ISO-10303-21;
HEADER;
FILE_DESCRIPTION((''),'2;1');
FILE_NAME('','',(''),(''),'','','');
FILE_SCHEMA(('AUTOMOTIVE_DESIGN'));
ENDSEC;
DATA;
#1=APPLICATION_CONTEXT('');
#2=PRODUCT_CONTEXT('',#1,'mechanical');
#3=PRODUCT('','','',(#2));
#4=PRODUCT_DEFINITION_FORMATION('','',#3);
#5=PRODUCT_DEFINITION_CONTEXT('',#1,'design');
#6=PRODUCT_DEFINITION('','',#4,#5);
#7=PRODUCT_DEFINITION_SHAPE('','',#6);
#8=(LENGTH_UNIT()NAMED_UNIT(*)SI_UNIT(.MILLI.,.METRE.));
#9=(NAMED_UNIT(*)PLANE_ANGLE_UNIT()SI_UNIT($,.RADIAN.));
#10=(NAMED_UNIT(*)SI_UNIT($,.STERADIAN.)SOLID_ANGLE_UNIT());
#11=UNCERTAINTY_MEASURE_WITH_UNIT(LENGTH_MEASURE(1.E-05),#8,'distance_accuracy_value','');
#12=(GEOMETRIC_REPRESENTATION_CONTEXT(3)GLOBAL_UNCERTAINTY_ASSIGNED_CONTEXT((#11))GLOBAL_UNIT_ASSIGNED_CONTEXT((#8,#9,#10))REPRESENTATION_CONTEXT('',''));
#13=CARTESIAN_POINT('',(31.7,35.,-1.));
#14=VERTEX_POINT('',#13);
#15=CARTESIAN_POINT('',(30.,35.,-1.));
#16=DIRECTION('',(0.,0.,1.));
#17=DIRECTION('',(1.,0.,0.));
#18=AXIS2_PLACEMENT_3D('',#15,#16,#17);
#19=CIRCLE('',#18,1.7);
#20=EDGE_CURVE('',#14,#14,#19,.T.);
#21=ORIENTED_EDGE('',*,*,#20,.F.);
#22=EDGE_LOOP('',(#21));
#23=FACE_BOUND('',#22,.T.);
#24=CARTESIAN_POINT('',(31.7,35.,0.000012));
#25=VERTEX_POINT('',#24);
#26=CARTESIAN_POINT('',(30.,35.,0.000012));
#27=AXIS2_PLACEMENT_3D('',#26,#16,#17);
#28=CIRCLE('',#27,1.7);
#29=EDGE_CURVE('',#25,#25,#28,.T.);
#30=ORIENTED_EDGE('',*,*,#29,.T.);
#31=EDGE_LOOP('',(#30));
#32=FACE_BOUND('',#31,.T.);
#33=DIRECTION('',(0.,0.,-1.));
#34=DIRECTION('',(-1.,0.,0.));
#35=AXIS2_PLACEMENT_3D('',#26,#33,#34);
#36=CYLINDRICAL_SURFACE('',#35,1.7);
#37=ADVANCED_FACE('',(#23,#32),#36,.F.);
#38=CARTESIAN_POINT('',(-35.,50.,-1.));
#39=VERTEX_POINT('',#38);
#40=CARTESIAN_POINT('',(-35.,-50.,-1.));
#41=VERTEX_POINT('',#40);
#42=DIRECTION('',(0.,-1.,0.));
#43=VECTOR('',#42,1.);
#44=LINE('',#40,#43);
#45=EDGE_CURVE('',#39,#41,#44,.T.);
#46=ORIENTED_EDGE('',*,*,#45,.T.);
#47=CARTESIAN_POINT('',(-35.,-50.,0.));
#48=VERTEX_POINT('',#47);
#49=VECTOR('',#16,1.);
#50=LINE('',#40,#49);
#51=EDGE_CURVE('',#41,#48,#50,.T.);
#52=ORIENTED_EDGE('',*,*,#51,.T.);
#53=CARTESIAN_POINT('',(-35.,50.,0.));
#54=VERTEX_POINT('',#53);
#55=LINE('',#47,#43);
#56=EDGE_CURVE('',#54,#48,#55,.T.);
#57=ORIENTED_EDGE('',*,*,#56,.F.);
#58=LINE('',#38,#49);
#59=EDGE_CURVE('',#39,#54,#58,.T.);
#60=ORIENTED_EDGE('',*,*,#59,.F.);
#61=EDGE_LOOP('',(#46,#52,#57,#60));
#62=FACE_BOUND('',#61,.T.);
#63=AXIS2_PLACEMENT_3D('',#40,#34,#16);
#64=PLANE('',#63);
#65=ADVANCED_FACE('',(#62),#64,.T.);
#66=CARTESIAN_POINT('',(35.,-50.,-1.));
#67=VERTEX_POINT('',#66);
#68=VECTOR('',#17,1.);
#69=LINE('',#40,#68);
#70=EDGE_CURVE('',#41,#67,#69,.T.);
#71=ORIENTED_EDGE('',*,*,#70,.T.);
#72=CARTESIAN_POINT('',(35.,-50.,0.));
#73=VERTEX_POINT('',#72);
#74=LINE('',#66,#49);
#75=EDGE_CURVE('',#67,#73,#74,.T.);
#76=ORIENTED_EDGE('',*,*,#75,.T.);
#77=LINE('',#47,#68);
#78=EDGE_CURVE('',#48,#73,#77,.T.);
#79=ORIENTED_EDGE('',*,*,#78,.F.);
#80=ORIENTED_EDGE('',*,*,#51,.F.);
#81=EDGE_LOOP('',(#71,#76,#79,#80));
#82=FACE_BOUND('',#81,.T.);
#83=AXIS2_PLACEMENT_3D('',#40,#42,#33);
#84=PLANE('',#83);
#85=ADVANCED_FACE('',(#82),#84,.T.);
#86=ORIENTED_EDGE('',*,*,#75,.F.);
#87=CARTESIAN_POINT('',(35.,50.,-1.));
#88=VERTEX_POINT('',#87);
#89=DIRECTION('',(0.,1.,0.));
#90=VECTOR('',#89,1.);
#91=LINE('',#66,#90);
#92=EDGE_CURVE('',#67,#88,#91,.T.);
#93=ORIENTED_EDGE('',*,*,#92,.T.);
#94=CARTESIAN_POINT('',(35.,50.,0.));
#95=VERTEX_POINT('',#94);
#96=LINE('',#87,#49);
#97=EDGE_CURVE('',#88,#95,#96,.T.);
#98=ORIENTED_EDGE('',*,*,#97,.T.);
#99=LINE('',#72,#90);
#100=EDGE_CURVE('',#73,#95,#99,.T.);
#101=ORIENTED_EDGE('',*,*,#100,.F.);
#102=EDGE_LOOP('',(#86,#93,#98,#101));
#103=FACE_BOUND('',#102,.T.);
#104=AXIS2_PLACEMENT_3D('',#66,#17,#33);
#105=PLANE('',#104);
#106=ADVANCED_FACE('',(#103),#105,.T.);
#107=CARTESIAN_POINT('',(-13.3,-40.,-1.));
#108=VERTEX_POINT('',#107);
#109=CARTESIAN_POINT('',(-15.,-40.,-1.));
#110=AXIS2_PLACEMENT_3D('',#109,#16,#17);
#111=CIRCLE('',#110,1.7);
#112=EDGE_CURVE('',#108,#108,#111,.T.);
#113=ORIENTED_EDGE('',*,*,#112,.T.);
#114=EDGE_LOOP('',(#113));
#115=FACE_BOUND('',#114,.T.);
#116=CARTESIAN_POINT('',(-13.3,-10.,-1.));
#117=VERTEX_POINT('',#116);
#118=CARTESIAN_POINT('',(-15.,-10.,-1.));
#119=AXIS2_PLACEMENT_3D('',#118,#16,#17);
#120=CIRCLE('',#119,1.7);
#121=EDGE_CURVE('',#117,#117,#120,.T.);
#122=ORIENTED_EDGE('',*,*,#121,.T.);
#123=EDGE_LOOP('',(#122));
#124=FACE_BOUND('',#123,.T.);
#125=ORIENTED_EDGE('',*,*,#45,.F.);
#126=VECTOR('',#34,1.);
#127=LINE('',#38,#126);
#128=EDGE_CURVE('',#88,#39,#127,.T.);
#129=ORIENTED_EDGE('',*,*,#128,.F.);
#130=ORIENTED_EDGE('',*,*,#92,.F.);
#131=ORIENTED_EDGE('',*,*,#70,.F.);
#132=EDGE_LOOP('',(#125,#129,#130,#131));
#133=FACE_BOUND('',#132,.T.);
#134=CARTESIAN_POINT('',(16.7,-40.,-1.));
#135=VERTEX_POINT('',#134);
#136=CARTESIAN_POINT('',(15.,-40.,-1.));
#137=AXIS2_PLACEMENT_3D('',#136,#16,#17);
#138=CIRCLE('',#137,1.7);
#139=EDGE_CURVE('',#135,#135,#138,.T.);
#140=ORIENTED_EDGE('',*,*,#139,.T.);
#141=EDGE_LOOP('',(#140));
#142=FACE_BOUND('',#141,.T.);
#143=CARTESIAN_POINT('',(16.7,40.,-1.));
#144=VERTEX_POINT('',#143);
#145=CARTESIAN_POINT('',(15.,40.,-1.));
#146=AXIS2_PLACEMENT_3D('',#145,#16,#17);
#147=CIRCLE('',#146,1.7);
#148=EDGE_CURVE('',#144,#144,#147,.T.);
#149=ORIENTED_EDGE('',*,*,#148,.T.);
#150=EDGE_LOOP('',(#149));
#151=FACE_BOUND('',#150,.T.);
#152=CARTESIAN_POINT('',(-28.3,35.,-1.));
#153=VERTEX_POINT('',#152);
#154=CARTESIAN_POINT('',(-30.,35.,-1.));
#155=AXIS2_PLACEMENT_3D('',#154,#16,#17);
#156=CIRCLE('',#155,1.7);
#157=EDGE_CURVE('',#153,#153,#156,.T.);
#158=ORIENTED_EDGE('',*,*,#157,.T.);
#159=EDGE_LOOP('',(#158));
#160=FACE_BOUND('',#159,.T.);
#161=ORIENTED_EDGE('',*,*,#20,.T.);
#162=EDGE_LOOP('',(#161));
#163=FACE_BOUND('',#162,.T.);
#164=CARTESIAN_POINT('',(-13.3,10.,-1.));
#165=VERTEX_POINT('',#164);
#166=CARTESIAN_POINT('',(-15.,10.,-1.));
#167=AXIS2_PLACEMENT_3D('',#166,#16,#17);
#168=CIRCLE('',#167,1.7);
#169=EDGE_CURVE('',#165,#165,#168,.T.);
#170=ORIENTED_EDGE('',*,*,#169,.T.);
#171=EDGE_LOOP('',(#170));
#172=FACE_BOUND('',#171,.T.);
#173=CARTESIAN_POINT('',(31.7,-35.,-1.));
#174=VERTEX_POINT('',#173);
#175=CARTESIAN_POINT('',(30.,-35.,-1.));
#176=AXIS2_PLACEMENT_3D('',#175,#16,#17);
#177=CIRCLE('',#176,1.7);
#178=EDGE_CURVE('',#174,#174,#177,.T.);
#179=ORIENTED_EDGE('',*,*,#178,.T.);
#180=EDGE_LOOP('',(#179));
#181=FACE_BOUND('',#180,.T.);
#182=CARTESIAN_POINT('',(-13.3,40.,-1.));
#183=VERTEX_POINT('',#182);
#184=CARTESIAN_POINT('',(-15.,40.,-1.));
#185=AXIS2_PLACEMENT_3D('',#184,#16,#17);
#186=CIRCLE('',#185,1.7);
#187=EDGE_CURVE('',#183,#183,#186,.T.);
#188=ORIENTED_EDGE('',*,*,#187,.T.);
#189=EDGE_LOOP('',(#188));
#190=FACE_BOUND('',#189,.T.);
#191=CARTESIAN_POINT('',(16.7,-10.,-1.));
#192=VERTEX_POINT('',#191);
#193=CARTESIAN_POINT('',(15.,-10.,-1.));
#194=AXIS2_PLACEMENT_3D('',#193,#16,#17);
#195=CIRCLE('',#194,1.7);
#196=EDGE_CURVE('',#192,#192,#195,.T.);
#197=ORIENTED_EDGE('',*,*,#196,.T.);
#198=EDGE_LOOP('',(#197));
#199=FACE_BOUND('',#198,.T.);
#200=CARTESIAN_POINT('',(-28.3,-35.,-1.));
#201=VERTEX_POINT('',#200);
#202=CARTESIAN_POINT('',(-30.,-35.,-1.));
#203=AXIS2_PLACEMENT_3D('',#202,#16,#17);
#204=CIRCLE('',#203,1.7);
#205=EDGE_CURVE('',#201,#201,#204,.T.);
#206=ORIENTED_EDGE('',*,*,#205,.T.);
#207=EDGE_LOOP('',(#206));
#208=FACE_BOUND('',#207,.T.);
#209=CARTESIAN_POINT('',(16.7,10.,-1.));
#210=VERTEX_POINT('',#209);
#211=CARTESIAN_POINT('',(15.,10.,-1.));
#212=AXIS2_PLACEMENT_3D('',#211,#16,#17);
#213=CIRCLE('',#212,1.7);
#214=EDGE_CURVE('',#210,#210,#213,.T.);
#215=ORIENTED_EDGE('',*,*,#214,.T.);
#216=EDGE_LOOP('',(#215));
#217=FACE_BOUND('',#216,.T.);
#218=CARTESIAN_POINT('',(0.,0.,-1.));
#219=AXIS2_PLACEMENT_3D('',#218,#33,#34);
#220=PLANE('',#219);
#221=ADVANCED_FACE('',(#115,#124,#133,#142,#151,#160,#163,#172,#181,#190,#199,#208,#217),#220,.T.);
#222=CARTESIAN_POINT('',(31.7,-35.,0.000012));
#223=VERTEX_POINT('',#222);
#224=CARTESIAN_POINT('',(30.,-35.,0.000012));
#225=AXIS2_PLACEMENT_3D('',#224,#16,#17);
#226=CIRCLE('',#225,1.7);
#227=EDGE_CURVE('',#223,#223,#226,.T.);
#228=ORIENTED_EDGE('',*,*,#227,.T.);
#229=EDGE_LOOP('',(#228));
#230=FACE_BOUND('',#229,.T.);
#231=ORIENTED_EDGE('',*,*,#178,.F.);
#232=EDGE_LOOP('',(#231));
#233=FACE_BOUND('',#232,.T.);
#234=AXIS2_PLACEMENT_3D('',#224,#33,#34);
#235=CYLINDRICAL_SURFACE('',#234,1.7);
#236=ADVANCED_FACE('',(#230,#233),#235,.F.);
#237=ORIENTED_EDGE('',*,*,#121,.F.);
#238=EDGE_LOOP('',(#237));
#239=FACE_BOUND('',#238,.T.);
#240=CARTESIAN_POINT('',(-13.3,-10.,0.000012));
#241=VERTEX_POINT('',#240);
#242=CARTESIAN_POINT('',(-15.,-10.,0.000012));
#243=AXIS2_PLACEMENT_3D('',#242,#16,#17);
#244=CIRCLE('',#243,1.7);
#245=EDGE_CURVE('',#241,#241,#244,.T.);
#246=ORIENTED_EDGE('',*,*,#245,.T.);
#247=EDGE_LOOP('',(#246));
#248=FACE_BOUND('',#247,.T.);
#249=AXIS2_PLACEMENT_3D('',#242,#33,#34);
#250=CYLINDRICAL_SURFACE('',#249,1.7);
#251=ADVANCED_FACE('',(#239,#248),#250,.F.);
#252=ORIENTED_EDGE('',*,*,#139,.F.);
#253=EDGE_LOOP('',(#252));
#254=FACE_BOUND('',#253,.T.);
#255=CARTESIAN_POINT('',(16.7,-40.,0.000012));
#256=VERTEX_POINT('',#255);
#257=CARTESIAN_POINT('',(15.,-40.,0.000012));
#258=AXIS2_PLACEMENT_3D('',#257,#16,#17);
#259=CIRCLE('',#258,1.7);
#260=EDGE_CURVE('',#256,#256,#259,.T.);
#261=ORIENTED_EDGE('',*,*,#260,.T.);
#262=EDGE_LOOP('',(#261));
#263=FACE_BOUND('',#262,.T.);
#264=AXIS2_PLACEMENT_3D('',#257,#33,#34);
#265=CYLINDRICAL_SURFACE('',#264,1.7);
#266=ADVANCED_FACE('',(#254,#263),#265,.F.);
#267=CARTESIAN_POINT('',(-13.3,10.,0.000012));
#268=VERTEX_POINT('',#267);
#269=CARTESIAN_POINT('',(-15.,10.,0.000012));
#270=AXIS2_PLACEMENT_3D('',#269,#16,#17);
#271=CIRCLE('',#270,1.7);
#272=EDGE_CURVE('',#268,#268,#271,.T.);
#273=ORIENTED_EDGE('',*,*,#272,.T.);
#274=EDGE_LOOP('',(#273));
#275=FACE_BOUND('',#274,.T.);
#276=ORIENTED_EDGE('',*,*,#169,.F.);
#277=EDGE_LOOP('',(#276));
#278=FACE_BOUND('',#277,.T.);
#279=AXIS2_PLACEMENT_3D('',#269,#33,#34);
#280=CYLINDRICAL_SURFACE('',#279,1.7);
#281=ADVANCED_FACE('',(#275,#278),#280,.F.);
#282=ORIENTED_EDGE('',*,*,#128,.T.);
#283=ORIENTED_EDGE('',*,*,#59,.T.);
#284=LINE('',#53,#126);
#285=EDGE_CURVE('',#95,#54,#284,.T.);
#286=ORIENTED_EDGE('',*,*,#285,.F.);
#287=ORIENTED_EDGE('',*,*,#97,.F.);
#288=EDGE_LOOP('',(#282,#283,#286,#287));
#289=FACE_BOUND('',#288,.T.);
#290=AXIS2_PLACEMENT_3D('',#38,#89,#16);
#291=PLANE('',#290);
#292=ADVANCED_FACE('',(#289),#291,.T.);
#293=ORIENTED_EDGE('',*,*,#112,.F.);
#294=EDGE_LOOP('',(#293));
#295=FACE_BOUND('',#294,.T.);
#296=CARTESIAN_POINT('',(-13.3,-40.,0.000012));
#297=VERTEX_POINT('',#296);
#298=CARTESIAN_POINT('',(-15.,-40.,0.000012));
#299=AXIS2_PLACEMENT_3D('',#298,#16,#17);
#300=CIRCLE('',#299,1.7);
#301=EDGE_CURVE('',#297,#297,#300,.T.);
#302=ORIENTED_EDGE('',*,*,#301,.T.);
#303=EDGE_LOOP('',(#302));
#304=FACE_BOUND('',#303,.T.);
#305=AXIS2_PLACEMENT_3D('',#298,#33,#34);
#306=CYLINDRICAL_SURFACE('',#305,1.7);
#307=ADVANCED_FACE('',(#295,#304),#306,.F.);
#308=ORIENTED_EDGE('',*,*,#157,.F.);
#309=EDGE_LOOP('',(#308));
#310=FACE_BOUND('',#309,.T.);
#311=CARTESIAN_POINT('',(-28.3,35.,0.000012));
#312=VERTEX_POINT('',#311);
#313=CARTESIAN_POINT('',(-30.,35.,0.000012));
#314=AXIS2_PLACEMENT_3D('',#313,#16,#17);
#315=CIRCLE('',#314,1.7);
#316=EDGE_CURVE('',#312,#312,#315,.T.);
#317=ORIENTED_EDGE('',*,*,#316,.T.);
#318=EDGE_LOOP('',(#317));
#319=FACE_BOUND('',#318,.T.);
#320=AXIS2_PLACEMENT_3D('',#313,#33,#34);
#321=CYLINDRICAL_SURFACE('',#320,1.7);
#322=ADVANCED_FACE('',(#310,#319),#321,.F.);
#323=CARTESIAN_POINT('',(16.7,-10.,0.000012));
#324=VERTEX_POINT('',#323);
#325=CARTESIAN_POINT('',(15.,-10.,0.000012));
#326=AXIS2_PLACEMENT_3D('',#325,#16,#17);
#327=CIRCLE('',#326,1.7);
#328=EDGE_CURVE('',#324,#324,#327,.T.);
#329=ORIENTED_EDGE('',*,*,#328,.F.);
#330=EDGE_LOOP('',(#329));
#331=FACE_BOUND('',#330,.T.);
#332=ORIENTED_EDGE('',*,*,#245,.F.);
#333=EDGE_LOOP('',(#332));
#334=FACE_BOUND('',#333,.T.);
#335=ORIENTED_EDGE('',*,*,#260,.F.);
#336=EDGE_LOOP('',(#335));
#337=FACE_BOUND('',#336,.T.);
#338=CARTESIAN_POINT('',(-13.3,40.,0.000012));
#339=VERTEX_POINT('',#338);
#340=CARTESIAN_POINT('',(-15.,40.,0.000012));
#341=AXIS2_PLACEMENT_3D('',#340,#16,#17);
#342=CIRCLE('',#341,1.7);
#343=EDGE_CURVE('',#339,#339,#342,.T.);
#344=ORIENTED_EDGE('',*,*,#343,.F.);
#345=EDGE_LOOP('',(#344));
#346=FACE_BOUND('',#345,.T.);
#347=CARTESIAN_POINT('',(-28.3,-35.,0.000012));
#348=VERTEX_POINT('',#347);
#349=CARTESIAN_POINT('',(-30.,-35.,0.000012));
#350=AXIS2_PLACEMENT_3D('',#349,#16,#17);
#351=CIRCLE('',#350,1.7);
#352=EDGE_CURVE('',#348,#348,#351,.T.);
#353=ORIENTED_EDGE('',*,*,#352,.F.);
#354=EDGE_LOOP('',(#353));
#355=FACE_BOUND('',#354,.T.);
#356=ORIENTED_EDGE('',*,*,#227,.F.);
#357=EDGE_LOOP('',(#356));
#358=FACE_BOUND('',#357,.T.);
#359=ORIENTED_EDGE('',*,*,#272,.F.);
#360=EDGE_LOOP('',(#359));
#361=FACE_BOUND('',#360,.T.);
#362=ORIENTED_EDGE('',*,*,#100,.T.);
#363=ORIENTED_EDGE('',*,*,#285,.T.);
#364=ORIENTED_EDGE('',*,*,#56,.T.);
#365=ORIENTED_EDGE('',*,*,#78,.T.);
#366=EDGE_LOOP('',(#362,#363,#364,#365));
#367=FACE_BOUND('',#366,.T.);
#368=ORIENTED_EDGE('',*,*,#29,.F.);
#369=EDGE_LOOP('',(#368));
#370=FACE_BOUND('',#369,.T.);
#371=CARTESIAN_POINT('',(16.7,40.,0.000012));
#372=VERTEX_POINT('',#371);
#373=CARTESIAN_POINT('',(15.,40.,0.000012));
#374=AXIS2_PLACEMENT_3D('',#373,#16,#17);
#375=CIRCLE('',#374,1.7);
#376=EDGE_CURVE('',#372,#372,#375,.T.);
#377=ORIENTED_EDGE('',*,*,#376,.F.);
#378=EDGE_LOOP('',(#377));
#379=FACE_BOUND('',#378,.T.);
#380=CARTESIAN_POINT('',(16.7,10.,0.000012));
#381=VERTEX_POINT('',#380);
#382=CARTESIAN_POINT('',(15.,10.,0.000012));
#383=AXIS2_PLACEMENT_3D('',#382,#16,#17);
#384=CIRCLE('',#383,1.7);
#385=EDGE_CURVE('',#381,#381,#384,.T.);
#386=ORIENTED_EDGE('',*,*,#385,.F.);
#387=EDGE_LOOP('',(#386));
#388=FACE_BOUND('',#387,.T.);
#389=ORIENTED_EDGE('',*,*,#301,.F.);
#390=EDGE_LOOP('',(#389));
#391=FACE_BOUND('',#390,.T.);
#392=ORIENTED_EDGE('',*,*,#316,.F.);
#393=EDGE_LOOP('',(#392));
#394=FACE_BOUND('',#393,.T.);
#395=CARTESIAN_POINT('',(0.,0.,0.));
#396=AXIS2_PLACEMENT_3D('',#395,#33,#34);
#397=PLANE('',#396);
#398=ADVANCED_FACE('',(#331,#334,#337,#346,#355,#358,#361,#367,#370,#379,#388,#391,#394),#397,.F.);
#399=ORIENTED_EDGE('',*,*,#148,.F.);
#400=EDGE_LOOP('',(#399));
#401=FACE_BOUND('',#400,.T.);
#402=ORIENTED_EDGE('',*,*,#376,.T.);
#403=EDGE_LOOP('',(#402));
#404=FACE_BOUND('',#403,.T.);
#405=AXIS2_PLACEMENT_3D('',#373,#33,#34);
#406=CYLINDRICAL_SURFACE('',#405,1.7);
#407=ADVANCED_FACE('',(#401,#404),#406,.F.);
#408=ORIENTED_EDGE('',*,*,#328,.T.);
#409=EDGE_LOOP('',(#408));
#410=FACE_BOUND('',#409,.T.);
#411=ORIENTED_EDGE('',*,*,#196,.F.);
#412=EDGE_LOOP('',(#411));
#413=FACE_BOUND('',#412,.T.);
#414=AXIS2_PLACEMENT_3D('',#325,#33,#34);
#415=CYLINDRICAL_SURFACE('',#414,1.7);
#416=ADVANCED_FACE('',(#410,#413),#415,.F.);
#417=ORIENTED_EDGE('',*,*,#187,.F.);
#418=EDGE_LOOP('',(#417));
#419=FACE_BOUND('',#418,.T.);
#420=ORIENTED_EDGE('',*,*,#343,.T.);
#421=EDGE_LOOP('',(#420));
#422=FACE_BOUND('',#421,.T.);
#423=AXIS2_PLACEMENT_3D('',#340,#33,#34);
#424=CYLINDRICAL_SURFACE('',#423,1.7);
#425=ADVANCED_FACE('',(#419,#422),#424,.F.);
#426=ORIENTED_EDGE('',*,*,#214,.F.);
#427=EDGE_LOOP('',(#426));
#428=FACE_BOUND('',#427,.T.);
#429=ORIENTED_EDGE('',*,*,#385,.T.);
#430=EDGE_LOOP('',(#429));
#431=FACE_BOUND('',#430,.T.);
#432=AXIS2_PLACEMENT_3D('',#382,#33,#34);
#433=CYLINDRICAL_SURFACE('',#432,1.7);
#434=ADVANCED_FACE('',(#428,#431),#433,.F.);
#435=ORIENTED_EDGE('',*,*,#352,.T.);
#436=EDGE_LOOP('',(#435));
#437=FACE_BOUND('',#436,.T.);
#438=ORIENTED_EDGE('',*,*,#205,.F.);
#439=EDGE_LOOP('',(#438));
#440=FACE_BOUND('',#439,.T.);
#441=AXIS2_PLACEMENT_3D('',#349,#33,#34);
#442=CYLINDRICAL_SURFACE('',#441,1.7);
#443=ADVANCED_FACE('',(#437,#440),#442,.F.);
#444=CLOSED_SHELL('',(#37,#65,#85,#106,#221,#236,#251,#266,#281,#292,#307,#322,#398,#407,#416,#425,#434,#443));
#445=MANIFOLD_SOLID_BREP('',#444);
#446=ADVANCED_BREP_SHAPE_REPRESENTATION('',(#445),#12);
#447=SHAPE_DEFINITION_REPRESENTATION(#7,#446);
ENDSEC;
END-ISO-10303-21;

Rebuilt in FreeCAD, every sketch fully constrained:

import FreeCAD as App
import Part
import Sketcher


def add_polygon(sketch, points):
    """Adds a closed chain of lines whose ends are joined by coincident constraints."""
    first, n = sketch.GeometryCount, len(points)
    for a, b in zip(points, points[1:] + points[:1]):
        sketch.addGeometry(Part.LineSegment(App.Vector(*a, 0), App.Vector(*b, 0)), False)
    for i in range(n):
        sketch.addConstraint(Sketcher.Constraint("Coincident", first + i, 2, first + (i + 1) % n, 1))

doc = App.newDocument("Part")
body = doc.addObject("PartDesign::Body", "Body")

# Sketch on XY plane
sketch1 = body.newObject("Sketcher::SketchObject", "Sketch")
sketch1.AttachmentSupport = (doc.getObject("XY_Plane"), [""])
sketch1.MapMode = "FlatFace"
add_polygon(sketch1, [(-35, 50), (-35, -50), (35, -50), (35, 50)])  # lines 0-3
sketch1.addConstraint([
    Sketcher.Constraint("Vertical", 0),
    Sketcher.Constraint("Horizontal", 1),
    Sketcher.Constraint("Vertical", 2),
    Sketcher.Constraint("Horizontal", 3),
    Sketcher.Constraint("Symmetric", 0, 2, 2, 2, -1, 1),
    Sketcher.Constraint("DistanceX", 1, 1, 1, 2, 70.0),
    Sketcher.Constraint("DistanceY", 0, 2, 0, 1, 100.0),
])
pad1 = body.newObject("PartDesign::Pad", "Pad")
pad1.Profile = sketch1
pad1.Length = 1
pad1.Reversed = True

# Sketch on XY plane
sketch2 = body.newObject("Sketcher::SketchObject", "Sketch001")
sketch2.AttachmentSupport = (doc.getObject("XY_Plane"), [""])
sketch2.MapMode = "FlatFace"
sketch2.addGeometry([
    Part.Circle(App.Vector(-30, -35, 0), App.Vector(0, 0, 1), 1.7),  # 0
    Part.Circle(App.Vector(-30, 35, 0), App.Vector(0, 0, 1), 1.7),  # 1
    Part.Circle(App.Vector(30, -35, 0), App.Vector(0, 0, 1), 1.7),  # 2
    Part.Circle(App.Vector(30, 35, 0), App.Vector(0, 0, 1), 1.7),  # 3
    Part.Circle(App.Vector(-15, -40, 0), App.Vector(0, 0, 1), 1.7),  # 4
    Part.Circle(App.Vector(-15, -10, 0), App.Vector(0, 0, 1), 1.7),  # 5
    Part.Circle(App.Vector(-15, 10, 0), App.Vector(0, 0, 1), 1.7),  # 6
    Part.Circle(App.Vector(-15, 40, 0), App.Vector(0, 0, 1), 1.7),  # 7
    Part.Circle(App.Vector(15, -40, 0), App.Vector(0, 0, 1), 1.7),  # 8
    Part.Circle(App.Vector(15, -10, 0), App.Vector(0, 0, 1), 1.7),  # 9
    Part.Circle(App.Vector(15, 10, 0), App.Vector(0, 0, 1), 1.7),  # 10
    Part.Circle(App.Vector(15, 40, 0), App.Vector(0, 0, 1), 1.7),  # 11
], False)
sketch2.addConstraint([
    Sketcher.Constraint("Equal", 0, 1),
    Sketcher.Constraint("Equal", 1, 2),
    Sketcher.Constraint("Equal", 2, 3),
    Sketcher.Constraint("Equal", 3, 4),
    Sketcher.Constraint("Equal", 4, 5),
    Sketcher.Constraint("Equal", 5, 6),
    Sketcher.Constraint("Equal", 6, 7),
    Sketcher.Constraint("Equal", 7, 8),
    Sketcher.Constraint("Equal", 8, 9),
    Sketcher.Constraint("Equal", 9, 10),
    Sketcher.Constraint("Equal", 10, 11),
    Sketcher.Constraint("Symmetric", 1, 3, 2, 3, -1, 1),
    Sketcher.Constraint("Symmetric", 0, 3, 3, 3, -1, 1),
    Sketcher.Constraint("Symmetric", 7, 3, 8, 3, -1, 1),
    Sketcher.Constraint("Symmetric", 6, 3, 9, 3, -1, 1),
    Sketcher.Constraint("Symmetric", 5, 3, 10, 3, -1, 1),
    Sketcher.Constraint("Symmetric", 4, 3, 11, 3, -1, 1),
    Sketcher.Constraint("Symmetric", 0, 3, 2, 3, -2),
    Sketcher.Constraint("Symmetric", 4, 3, 8, 3, -2),
    Sketcher.Constraint("Symmetric", 5, 3, 9, 3, -2),
    Sketcher.Constraint("Vertical", 4, 3, 5, 3),
    Sketcher.Constraint("Diameter", 0, 3.4),
    Sketcher.Constraint("DistanceX", 0, 3, -1, 1, 30.0),
    Sketcher.Constraint("DistanceY", 0, 3, -1, 1, 35.0),
    Sketcher.Constraint("DistanceX", 4, 3, -1, 1, 15.0),
    Sketcher.Constraint("DistanceY", 4, 3, -1, 1, 40.0),
    Sketcher.Constraint("DistanceY", 5, 3, -1, 1, 10.0),
])
pocket1 = body.newObject("PartDesign::Pocket", "Pocket")
pocket1.Profile = sketch2
pocket1.Type = "ThroughAll"
pocket1.Midplane = True

doc.recompute()
